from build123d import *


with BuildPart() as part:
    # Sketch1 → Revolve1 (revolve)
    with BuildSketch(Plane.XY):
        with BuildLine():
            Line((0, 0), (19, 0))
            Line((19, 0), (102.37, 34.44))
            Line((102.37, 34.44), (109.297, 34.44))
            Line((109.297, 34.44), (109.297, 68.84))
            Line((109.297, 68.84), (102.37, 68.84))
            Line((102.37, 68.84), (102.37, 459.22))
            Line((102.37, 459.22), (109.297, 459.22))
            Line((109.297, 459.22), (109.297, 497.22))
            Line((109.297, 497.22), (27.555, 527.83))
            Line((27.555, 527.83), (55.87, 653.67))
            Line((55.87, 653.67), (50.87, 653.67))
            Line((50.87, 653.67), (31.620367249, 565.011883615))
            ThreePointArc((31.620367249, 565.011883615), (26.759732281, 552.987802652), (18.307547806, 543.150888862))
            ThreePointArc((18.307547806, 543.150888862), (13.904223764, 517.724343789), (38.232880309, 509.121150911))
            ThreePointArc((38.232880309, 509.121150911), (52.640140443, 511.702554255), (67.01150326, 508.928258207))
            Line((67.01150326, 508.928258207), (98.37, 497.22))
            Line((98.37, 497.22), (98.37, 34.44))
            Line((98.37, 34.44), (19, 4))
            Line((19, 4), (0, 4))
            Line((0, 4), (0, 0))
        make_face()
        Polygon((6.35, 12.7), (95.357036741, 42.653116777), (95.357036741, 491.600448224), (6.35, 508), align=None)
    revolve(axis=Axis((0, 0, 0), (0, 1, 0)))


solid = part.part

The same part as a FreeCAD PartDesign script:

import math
import FreeCAD as App
import Part
import Sketcher
Q = App.Units.Quantity

doc = App.newDocument("Part")
body = doc.addObject("PartDesign::Body", "Body")
body.AllowCompound = True

# Sketch on XY plane
sketch1 = body.newObject("Sketcher::SketchObject", "Sketch")
sketch1.AttachmentSupport = (doc.getObject("XY_Plane"), [""])
sketch1.MapMode = "FlatFace"
sketch1.addGeometry([
    Part.LineSegment(App.Vector(0, 0, 0), App.Vector(19, 0, 0)),  # 0
    Part.LineSegment(App.Vector(19, 0, 0), App.Vector(102.4, 34.4, 0)),  # 1
    Part.LineSegment(App.Vector(102.4, 34.4, 0), App.Vector(109.3, 34.4, 0)),  # 2
    Part.LineSegment(App.Vector(109.3, 34.4, 0), App.Vector(109.3, 68.8, 0)),  # 3
    Part.LineSegment(App.Vector(109.3, 68.8, 0), App.Vector(102.4, 68.8, 0)),  # 4
    Part.LineSegment(App.Vector(102.4, 68.8, 0), App.Vector(102.4, 459.2, 0)),  # 5
    Part.LineSegment(App.Vector(102.4, 459.2, 0), App.Vector(109.3, 459.2, 0)),  # 6
    Part.LineSegment(App.Vector(109.3, 459.2, 0), App.Vector(109.3, 497.2, 0)),  # 7
    Part.LineSegment(App.Vector(109.3, 497.2, 0), App.Vector(27.6, 527.8, 0)),  # 8
    Part.LineSegment(App.Vector(27.6, 527.8, 0), App.Vector(55.9, 653.7, 0)),  # 9
    Part.LineSegment(App.Vector(55.9, 653.7, 0), App.Vector(50.9, 653.7, 0)),  # 10
    Part.LineSegment(App.Vector(50.9, 653.7, 0), App.Vector(31.6, 565, 0)),  # 11
    Part.ArcOfCircle(Part.Circle(App.Vector(-7.4, 573.8, 0), App.Vector(0, 0, 1), 40), math.radians(-50), math.radians(-13)),  # 12
    Part.ArcOfCircle(Part.Circle(App.Vector(31.2, 527.8, 0), App.Vector(0, 0, 1), 20), math.radians(130), math.radians(291)),  # 13
    Part.ArcOfCircle(Part.Circle(App.Vector(52.4, 471.7, 0), App.Vector(0, 0, 1), 40), math.radians(69), math.radians(111)),  # 14
    Part.LineSegment(App.Vector(67, 508.9, 0), App.Vector(98.4, 497.2, 0)),  # 15
    Part.LineSegment(App.Vector(98.4, 497.2, 0), App.Vector(98.4, 34.4, 0)),  # 16
    Part.LineSegment(App.Vector(98.4, 34.4, 0), App.Vector(19, 4, 0)),  # 17
    Part.LineSegment(App.Vector(19, 4, 0), App.Vector(0, 4, 0)),  # 18
    Part.LineSegment(App.Vector(0, 4, 0), App.Vector(0, 0, 0)),  # 19
    Part.LineSegment(App.Vector(6.3, 12.7, 0), App.Vector(95.4, 42.7, 0)),  # 20
    Part.LineSegment(App.Vector(95.4, 42.7, 0), App.Vector(95.4, 491.6, 0)),  # 21
    Part.LineSegment(App.Vector(95.4, 491.6, 0), App.Vector(6.3, 508, 0)),  # 22
    Part.LineSegment(App.Vector(6.3, 508, 0), App.Vector(6.3, 12.7, 0)),  # 23
], False)
sketch1.addConstraint([
    Sketcher.Constraint("Coincident", 0, 2, 1, 1),
    Sketcher.Constraint("Coincident", 1, 2, 2, 1),
    Sketcher.Constraint("Coincident", 2, 2, 3, 1),
    Sketcher.Constraint("Coincident", 3, 2, 4, 1),
    Sketcher.Constraint("Coincident", 4, 2, 5, 1),
    Sketcher.Constraint("Coincident", 5, 2, 6, 1),
    Sketcher.Constraint("Coincident", 6, 2, 7, 1),
    Sketcher.Constraint("Coincident", 7, 2, 8, 1),
    Sketcher.Constraint("Coincident", 8, 2, 9, 1),
    Sketcher.Constraint("Coincident", 9, 2, 10, 1),
    Sketcher.Constraint("Coincident", 10, 2, 11, 1),
    Sketcher.Constraint("Coincident", 11, 2, 12, 2),
    Sketcher.Constraint("Tangent", 12, 1, 13, 1),
    Sketcher.Constraint("Tangent", 13, 2, 14, 2),
    Sketcher.Constraint("Coincident", 14, 1, 15, 1),
    Sketcher.Constraint("Coincident", 15, 2, 16, 1),
    Sketcher.Constraint("Coincident", 16, 2, 17, 1),
    Sketcher.Constraint("Coincident", 17, 2, 18, 1),
    Sketcher.Constraint("Coincident", 18, 2, 19, 1),
    Sketcher.Constraint("Coincident", 19, 2, 0, 1),
    Sketcher.Constraint("Coincident", 20, 2, 21, 1),
    Sketcher.Constraint("Coincident", 21, 2, 22, 1),
    Sketcher.Constraint("Coincident", 22, 2, 23, 1),
    Sketcher.Constraint("Coincident", 23, 2, 20, 1),
    Sketcher.Constraint("Horizontal", 0),
    Sketcher.Constraint("Horizontal", 2),
    Sketcher.Constraint("Vertical", 3),
    Sketcher.Constraint("Horizontal", 4),
    Sketcher.Constraint("Vertical", 5),
    Sketcher.Constraint("Horizontal", 6),
    Sketcher.Constraint("Vertical", 7),
    Sketcher.Constraint("Horizontal", 10),
    Sketcher.Constraint("Vertical", 16),
    Sketcher.Constraint("Horizontal", 18),
    Sketcher.Constraint("Vertical", 19),
    Sketcher.Constraint("Vertical", 21),
    Sketcher.Constraint("Vertical", 23),
    Sketcher.Constraint("Coincident", 19, 2, -1, 1),
    Sketcher.Constraint("Equal", 12, 14),
    Sketcher.Constraint("Horizontal", 13, 3, 8, 2),
    Sketcher.Constraint("Horizontal", 7, 2, 15, 2),
    Sketcher.Constraint("Horizontal", 2, 2, 16, 2),
    Sketcher.Constraint("Vertical", 1, 2, 4, 2),
    Sketcher.Constraint("Vertical", 3, 2, 6, 2),
    Sketcher.Constraint("Vertical", 0, 2, 17, 2),
    Sketcher.Constraint("Radius", 12, Q("40 mm")),
    Sketcher.Constraint("Radius", 13, Q("20 mm")),
    Sketcher.Constraint("DistanceX", 0, 1, 0, 2, Q("19 mm")),
    Sketcher.Constraint("DistanceX", 10, 2, 10, 1, Q("5 mm")),
    Sketcher.Constraint("DistanceY", 7, 1, 7, 2, Q("38 mm")),
    Sketcher.Constraint("DistanceY", 19, 2, 19, 1, Q("4 mm")),
    Sketcher.Constraint("DistanceY", 3, 1, 3, 2, Q("34.4 mm")),
    Sketcher.Constraint("DistanceY", 23, 2, 23, 1, Q("495.3 mm")),
    Sketcher.Constraint("DistanceY", -1, 1, 22, 2, Q("508 mm")),
    Sketcher.Constraint("DistanceX", 15, 2, 5, 2, Q("4 mm")),
    Sketcher.Constraint("DistanceY", 5, 1, 5, 2, Q("390.38 mm")),
    Sketcher.Constraint("DistanceX", 2, 1, 2, 2, Q("6.927 mm")),
    Sketcher.Constraint("DistanceY", -1, 1, 13, 3, Q("527.83 mm")),
    Sketcher.Constraint("DistanceX", -1, 1, 1, 2, Q("102.37 mm")),
    Sketcher.Constraint("DistanceY", -1, 1, 1, 2, Q("34.44 mm")),
    Sketcher.Constraint("DistanceX", -1, 1, 9, 2, Q("55.87 mm")),
    Sketcher.Constraint("DistanceY", -1, 1, 9, 2, Q("653.67 mm")),
    Sketcher.Constraint("DistanceX", -1, 1, 22, 2, Q("6.35 mm")),
    Sketcher.Constraint("DistanceX", -1, 1, 8, 2, Q("27.555 mm")),
    Sketcher.Constraint("DistanceY", 21, 1, 21, 2, Q("448.947331 mm")),
    Sketcher.Constraint("DistanceX", -1, 1, 13, 3, Q("31.1633 mm")),
    Sketcher.Constraint("DistanceY", 14, 3, 13, 2, Q("37.417698 mm")),
    Sketcher.Constraint("Distance", 11, Q("90.723811 mm")),
    Sketcher.Constraint("DistanceY", -1, 1, 12, 1, Q("543.150889 mm")),
    Sketcher.Constraint("DistanceY", -1, 1, 14, 1, Q("508.928258 mm")),
    Sketcher.Constraint("DistanceY", -1, 1, 21, 2, Q("491.600448 mm")),
    Sketcher.Constraint("Distance", 20, Q("93.911883 mm")),
])
revolution = body.newObject("PartDesign::Revolution", "Revolution")
revolution.Profile = sketch1
revolution.ReferenceAxis = (sketch1, ["V_Axis"])
revolution.Angle = 360

doc.recompute()
